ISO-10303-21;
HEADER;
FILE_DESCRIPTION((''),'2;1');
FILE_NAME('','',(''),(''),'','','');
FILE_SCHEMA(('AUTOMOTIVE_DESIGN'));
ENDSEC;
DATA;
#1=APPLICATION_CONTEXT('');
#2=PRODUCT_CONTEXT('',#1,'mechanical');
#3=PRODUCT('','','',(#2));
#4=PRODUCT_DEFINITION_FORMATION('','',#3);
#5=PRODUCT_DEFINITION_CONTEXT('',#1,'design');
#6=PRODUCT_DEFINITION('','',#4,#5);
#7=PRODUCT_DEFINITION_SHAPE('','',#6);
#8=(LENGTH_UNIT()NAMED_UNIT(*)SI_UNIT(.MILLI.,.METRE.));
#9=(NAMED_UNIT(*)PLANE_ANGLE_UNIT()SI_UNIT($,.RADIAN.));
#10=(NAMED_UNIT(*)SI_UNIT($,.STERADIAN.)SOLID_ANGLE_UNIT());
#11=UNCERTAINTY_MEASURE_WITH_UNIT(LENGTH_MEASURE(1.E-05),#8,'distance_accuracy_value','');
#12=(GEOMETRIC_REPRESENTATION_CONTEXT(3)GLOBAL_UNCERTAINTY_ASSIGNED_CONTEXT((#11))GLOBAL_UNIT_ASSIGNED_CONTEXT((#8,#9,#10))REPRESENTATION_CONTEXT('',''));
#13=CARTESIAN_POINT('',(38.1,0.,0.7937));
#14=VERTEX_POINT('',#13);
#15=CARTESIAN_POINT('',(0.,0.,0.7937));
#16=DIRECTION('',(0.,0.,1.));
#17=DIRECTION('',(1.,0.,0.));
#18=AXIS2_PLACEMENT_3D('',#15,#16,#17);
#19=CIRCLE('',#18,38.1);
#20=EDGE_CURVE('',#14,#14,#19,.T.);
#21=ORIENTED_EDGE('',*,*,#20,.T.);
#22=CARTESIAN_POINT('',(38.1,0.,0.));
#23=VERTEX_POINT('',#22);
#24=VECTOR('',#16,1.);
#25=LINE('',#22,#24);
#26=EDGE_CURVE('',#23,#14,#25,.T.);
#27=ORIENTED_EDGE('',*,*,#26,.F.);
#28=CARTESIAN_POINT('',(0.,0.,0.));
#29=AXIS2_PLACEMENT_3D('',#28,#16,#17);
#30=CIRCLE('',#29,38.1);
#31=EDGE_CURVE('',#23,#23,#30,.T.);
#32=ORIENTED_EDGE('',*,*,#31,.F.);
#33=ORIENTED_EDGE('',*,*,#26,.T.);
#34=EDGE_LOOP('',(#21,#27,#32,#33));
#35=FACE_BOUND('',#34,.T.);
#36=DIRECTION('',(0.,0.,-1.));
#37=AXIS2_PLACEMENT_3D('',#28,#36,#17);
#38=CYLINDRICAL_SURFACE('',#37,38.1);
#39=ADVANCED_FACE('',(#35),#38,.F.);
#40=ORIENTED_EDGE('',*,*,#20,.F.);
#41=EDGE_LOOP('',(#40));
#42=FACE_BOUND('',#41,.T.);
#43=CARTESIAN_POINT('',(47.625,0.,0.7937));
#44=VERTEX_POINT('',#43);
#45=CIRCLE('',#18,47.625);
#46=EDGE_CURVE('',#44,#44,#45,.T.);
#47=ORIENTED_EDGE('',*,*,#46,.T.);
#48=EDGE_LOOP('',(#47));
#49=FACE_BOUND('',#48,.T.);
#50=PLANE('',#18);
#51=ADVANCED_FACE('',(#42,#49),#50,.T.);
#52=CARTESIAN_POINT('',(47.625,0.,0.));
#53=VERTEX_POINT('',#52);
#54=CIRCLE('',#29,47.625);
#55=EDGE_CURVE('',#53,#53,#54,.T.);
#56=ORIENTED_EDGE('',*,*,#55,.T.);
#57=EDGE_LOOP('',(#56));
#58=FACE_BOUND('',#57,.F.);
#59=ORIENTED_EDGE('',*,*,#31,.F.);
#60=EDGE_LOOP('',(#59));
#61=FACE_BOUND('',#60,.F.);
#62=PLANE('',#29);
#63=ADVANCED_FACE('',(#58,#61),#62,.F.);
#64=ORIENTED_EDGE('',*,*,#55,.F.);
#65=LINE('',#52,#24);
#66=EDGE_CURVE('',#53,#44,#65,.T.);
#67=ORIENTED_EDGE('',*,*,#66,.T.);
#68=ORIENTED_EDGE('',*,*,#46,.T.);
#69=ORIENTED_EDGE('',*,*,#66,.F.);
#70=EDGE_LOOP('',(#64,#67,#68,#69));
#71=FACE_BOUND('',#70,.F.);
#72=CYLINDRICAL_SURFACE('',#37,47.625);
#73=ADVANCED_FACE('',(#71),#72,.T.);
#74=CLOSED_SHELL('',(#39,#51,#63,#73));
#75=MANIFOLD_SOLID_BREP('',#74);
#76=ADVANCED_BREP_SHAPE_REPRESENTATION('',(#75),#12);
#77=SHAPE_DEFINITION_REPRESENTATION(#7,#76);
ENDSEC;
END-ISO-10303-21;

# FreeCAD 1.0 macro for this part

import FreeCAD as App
import Part
import Sketcher
Q = App.Units.Quantity

doc = App.newDocument("Part")
body = doc.addObject("PartDesign::Body", "Body")

# Sketch on XY plane
sketch1 = body.newObject("Sketcher::SketchObject", "Sketch")
sketch1.AttachmentSupport = (doc.getObject("XY_Plane"), [""])
sketch1.MapMode = "FlatFace"
sketch1.addGeometry([
    Part.Circle(App.Vector(0, 0, 0), App.Vector(0, 0, 1), 48),
    Part.Circle(App.Vector(0, 0, 0), App.Vector(0, 0, 1), 38),
], False)
sketch1.addConstraint([
    Sketcher.Constraint("Coincident", 0, 3, -1, 1),
    Sketcher.Constraint("Coincident", 1, 3, -1, 1),
    Sketcher.Constraint("Diameter", 1, Q("3 in")),
    Sketcher.Constraint("Diameter", 0, Q("3.75 in")),
])
pad1 = body.newObject("PartDesign::Pad", "Pad")
pad1.Profile = sketch1
pad1.Length = Q("0.031248 in")

doc.recompute()
